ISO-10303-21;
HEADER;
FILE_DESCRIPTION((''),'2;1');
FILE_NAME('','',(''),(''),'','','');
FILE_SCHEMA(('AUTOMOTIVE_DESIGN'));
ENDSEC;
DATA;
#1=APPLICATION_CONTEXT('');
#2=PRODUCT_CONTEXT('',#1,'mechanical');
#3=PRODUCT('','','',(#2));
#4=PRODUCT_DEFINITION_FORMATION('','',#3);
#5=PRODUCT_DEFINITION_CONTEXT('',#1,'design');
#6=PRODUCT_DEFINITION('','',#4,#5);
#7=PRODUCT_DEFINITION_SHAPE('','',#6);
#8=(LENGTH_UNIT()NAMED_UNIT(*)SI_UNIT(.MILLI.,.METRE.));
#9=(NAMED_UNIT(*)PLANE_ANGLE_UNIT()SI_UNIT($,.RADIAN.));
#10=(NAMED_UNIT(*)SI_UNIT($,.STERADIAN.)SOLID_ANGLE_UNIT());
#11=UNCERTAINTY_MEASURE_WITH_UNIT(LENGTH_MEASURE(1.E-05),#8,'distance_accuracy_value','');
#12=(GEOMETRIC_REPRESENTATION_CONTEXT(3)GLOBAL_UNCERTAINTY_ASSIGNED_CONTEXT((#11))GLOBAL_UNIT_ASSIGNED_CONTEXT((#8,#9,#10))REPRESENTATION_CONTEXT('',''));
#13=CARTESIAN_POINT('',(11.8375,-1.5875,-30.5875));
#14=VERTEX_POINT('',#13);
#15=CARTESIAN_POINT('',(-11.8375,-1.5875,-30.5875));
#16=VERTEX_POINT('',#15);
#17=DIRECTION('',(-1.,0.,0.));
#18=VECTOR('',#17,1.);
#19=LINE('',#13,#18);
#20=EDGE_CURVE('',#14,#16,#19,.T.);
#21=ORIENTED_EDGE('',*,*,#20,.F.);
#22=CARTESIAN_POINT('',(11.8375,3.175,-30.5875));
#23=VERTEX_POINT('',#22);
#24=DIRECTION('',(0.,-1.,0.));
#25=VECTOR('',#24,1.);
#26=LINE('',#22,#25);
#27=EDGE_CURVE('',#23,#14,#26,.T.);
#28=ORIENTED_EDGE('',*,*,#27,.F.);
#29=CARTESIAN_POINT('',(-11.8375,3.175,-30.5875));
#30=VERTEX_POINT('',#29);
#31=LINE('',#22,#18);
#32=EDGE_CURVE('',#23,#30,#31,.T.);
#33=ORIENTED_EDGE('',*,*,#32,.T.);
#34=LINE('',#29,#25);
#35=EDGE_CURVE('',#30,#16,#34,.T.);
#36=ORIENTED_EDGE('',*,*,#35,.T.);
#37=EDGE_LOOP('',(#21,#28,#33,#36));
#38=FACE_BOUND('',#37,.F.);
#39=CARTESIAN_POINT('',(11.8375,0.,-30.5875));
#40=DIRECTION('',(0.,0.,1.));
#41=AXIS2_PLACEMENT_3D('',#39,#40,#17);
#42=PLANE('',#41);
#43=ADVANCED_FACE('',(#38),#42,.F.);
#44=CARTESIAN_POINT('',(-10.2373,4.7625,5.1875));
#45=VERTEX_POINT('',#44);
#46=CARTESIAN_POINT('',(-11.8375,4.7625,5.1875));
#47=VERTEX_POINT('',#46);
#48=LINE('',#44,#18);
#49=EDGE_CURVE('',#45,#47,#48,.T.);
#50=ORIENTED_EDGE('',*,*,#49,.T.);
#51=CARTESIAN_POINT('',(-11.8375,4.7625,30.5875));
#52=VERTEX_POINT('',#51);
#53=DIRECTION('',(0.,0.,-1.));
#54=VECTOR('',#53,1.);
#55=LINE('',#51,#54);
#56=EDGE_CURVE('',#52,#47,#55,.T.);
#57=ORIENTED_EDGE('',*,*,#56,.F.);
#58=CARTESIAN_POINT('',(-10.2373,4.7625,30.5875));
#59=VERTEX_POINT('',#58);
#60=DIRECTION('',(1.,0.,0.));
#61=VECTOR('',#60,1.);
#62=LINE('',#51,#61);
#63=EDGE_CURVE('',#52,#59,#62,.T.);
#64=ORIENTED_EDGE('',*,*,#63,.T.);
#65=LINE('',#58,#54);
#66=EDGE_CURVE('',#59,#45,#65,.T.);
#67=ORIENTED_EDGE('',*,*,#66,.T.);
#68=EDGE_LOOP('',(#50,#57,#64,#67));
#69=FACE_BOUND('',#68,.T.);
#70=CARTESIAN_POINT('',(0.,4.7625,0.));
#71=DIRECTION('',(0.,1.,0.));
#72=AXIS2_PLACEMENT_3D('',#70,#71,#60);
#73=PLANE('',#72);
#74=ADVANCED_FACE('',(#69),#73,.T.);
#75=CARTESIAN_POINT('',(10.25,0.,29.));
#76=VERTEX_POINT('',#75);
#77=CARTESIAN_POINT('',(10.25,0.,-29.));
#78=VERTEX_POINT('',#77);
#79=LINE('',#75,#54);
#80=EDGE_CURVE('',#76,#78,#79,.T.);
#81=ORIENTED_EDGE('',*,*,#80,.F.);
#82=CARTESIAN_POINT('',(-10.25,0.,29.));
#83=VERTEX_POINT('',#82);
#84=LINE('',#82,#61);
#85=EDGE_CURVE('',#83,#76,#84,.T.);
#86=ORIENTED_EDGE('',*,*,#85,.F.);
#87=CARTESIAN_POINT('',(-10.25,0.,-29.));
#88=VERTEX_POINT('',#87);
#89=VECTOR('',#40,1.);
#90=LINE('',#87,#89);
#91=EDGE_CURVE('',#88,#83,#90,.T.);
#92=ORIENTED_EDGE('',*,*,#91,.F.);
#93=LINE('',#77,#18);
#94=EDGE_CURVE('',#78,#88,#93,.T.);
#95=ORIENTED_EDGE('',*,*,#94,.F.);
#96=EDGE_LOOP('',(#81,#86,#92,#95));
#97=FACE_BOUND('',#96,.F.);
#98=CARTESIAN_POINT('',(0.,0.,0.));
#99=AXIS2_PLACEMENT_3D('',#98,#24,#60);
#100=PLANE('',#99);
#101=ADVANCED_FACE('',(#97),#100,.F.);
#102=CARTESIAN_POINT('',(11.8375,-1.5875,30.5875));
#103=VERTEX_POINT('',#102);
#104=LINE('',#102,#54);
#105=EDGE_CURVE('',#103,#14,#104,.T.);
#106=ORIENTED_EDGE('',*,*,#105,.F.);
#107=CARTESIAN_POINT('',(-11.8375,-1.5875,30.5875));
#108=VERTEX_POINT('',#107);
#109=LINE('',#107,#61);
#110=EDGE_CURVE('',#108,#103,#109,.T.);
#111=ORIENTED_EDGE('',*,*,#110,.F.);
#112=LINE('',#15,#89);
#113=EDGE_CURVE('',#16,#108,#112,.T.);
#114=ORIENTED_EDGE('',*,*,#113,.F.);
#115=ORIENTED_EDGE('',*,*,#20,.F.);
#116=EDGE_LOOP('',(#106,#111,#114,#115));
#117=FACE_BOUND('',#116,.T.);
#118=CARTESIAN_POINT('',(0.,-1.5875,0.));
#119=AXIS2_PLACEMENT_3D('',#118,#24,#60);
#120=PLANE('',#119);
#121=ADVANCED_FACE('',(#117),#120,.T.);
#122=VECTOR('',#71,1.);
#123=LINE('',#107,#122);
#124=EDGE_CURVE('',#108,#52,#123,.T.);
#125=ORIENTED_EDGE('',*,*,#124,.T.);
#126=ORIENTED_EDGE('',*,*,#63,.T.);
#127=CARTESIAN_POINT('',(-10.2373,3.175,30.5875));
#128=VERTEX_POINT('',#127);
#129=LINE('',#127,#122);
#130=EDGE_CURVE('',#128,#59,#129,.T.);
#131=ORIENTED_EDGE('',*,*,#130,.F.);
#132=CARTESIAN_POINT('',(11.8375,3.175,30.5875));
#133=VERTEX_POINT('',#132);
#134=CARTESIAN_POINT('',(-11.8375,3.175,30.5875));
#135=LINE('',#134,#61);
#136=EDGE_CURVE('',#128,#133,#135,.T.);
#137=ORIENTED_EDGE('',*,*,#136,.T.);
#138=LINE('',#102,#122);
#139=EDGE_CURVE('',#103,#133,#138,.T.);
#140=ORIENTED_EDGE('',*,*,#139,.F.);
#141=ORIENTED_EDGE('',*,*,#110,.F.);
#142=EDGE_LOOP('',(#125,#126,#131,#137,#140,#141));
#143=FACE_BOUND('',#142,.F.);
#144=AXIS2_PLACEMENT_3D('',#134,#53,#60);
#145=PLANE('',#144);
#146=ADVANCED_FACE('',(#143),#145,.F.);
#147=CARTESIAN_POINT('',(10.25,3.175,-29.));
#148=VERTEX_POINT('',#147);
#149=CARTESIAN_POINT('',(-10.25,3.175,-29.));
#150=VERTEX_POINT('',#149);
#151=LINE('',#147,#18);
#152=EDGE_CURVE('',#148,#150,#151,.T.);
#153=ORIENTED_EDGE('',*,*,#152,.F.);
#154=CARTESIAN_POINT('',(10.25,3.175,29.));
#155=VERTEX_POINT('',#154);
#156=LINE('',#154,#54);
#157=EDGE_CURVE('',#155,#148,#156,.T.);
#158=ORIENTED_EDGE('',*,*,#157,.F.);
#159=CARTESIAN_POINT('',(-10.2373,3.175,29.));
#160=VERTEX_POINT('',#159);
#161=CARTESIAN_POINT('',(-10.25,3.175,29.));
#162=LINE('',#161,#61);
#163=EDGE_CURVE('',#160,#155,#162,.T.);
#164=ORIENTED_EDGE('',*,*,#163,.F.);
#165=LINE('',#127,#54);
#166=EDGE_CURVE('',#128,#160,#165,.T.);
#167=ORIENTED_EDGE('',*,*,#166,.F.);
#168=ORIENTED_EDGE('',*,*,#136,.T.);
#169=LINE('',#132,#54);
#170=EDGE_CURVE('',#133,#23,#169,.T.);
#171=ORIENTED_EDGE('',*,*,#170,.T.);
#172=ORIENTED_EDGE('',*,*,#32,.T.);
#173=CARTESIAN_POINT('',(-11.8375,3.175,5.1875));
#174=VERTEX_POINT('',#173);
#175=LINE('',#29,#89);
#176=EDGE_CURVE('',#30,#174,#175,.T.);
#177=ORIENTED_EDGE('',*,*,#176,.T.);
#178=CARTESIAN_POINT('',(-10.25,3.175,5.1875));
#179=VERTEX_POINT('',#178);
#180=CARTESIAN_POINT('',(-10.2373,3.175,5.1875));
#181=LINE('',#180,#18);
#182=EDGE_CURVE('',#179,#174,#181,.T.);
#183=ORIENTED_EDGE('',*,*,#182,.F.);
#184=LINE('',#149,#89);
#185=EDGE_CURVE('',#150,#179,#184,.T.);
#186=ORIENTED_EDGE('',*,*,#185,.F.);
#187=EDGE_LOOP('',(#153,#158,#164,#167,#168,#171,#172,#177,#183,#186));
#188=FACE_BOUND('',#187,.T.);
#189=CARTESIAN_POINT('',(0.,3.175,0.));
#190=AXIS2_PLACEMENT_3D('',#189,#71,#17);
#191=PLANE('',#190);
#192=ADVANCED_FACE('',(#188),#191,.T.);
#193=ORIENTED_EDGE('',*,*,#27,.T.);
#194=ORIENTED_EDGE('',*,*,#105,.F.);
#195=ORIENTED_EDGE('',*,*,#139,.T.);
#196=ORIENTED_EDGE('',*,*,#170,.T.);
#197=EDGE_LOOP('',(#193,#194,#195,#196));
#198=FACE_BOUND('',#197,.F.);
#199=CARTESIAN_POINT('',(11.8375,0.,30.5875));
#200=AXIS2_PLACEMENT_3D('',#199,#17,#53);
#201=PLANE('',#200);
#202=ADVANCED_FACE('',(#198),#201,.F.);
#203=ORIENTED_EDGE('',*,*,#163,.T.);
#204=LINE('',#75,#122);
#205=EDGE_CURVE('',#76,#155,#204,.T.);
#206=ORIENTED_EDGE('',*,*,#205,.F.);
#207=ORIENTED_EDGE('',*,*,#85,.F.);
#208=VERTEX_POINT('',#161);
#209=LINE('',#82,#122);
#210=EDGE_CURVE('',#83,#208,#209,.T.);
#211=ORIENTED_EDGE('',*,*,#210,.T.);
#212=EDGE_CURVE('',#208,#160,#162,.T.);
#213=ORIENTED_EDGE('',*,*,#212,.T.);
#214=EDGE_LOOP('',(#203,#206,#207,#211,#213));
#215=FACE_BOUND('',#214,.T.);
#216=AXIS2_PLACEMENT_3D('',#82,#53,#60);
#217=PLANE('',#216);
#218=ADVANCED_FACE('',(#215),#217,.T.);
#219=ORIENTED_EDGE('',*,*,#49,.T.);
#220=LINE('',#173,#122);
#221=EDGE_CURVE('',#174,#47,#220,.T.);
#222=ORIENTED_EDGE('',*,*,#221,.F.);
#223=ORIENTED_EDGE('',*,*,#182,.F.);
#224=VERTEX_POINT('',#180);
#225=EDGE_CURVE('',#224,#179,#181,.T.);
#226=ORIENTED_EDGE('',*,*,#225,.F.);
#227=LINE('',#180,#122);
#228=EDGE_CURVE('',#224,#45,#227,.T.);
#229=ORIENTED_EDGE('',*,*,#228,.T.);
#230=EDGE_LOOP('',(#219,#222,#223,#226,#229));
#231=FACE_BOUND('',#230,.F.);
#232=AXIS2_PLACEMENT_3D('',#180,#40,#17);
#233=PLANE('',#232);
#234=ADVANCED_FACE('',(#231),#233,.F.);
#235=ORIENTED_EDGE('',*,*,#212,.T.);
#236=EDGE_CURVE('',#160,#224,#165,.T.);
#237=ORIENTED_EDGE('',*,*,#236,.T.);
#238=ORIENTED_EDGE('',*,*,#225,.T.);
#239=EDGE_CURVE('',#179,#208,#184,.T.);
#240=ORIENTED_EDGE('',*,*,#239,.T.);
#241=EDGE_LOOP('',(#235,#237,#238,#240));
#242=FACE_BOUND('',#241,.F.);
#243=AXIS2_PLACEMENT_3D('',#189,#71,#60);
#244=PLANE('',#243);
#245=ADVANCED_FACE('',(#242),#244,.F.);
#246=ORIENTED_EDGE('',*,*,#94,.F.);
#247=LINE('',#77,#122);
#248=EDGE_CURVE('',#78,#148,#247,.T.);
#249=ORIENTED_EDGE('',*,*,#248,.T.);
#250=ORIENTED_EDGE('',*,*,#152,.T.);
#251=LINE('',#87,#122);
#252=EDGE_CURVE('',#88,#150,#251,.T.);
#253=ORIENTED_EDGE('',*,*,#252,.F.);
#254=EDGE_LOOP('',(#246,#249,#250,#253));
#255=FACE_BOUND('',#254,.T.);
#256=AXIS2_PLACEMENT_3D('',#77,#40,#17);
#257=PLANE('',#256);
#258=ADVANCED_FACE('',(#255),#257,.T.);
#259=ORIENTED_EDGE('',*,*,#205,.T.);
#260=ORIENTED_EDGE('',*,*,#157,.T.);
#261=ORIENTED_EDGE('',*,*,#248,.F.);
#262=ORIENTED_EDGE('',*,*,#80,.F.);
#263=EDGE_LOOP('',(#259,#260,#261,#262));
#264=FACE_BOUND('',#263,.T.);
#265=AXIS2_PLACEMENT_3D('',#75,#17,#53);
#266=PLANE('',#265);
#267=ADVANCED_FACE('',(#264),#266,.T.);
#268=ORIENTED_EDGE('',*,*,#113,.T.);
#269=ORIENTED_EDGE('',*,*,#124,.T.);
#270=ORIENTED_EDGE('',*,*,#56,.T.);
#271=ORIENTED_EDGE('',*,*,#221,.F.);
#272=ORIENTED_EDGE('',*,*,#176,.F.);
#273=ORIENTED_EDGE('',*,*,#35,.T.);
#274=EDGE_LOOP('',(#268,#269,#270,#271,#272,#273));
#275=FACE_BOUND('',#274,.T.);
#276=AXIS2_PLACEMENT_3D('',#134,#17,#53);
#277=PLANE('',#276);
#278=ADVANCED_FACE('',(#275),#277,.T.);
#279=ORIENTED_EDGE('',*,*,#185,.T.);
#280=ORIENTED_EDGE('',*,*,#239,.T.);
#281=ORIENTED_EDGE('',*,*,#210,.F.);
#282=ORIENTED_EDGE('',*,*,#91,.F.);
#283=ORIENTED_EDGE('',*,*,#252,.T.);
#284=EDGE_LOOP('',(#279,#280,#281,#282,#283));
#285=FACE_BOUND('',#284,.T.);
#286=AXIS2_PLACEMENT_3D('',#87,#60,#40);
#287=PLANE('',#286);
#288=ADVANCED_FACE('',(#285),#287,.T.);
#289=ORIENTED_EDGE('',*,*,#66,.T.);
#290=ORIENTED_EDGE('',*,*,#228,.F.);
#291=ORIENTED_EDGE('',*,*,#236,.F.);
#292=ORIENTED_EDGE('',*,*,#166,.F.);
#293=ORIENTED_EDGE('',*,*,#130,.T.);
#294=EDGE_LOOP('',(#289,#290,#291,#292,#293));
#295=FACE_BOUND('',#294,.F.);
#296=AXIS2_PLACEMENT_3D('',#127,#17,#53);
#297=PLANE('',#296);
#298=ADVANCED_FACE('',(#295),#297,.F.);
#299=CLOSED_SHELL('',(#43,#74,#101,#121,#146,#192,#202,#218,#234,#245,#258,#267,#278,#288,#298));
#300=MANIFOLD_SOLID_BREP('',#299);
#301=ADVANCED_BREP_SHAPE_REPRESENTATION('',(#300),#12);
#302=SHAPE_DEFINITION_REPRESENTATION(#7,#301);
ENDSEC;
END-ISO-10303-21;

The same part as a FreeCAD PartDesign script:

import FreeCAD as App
import Part
import Sketcher
from FreeCAD import Vector
Q = App.Units.Quantity

doc = App.newDocument("Part")
body = doc.addObject("PartDesign::Body", "Body")

sketch1 = body.newObject("Sketcher::SketchObject", "Sketch")
sketch1.AttachmentSupport = (doc.getObject("XZ_Plane"), [""])
sketch1.MapMode = "FlatFace"
sketch1.addGeometry(Part.LineSegment(Vector(-11.8375, -30.5875, 0), Vector(-11.8375, 30.5875, 0)), False)
sketch1.addGeometry(Part.LineSegment(Vector(-11.8375, 30.5875, 0), Vector(11.8375, 30.5875, 0)), False)
sketch1.addGeometry(Part.LineSegment(Vector(11.8375, 30.5875, 0), Vector(11.8375, -30.5875, 0)), False)
sketch1.addGeometry(Part.LineSegment(Vector(11.8375, -30.5875, 0), Vector(-11.8375, -30.5875, 0)), False)
sketch1.addGeometry(Part.LineSegment(Vector(10.25, 29, 0), Vector(-10.25, 29, 0)), False)
sketch1.addGeometry(Part.LineSegment(Vector(-10.25, 29, 0), Vector(-10.25, -29, 0)), False)
sketch1.addGeometry(Part.LineSegment(Vector(-10.25, -29, 0), Vector(10.25, -29, 0)), False)
sketch1.addGeometry(Part.LineSegment(Vector(10.25, -29, 0), Vector(10.25, 29, 0)), False)
sketch1.addConstraint(Sketcher.Constraint("Coincident", 0, 2, 1, 1))
sketch1.addConstraint(Sketcher.Constraint("Coincident", 1, 2, 2, 1))
sketch1.addConstraint(Sketcher.Constraint("Coincident", 2, 2, 3, 1))
sketch1.addConstraint(Sketcher.Constraint("Coincident", 3, 2, 0, 1))
sketch1.addConstraint(Sketcher.Constraint("Coincident", 4, 2, 5, 1))
sketch1.addConstraint(Sketcher.Constraint("Coincident", 5, 2, 6, 1))
sketch1.addConstraint(Sketcher.Constraint("Coincident", 6, 2, 7, 1))
sketch1.addConstraint(Sketcher.Constraint("Coincident", 7, 2, 4, 1))
sketch1.addConstraint(Sketcher.Constraint("Vertical", 0))
sketch1.addConstraint(Sketcher.Constraint("Horizontal", 1))
sketch1.addConstraint(Sketcher.Constraint("Vertical", 2))
sketch1.addConstraint(Sketcher.Constraint("Horizontal", 3))
sketch1.addConstraint(Sketcher.Constraint("Horizontal", 4))
sketch1.addConstraint(Sketcher.Constraint("Vertical", 5))
sketch1.addConstraint(Sketcher.Constraint("Horizontal", 6))
sketch1.addConstraint(Sketcher.Constraint("Vertical", 7))
sketch1.addConstraint(Sketcher.Constraint("Symmetric", 0, 2, 2, 2, -1, 1))
sketch1.addConstraint(Sketcher.Constraint("Symmetric", 4, 2, 6, 2, -1, 1))
sketch1.addConstraint(Sketcher.Constraint("DistanceX", 0, 2, 4, 2, Q("0.0625 in")))
sketch1.addConstraint(Sketcher.Constraint("DistanceY", 4, 2, 0, 2, Q("0.0625 in")))
sketch1.addConstraint(Sketcher.Constraint("DistanceX", 4, 2, 4, 1, 20.5))
sketch1.addConstraint(Sketcher.Constraint("DistanceY", 5, 2, 5, 1, 58.0))
pad1 = body.newObject("PartDesign::Pad", "Pad")
pad1.Profile = sketch1
pad1.Length = Q("0.125 in")
pad1.Reversed = True

sketch2 = body.newObject("Sketcher::SketchObject", "Sketch001")
sketch2.AttachmentSupport = (doc.getObject("XZ_Plane"), [""])
sketch2.MapMode = "FlatFace"
sketch2.addGeometry(Part.LineSegment(Vector(11.8375, 30.5875, 0), Vector(-11.8375, 30.5875, 0)), False)
sketch2.addGeometry(Part.LineSegment(Vector(-11.8375, 30.5875, 0), Vector(-11.8375, -30.5875, 0)), False)
sketch2.addGeometry(Part.LineSegment(Vector(-11.8375, -30.5875, 0), Vector(11.8375, -30.5875, 0)), False)
sketch2.addGeometry(Part.LineSegment(Vector(11.8375, -30.5875, 0), Vector(11.8375, 30.5875, 0)), False)
sketch2.addConstraint(Sketcher.Constraint("Coincident", 0, 2, 1, 1))
sketch2.addConstraint(Sketcher.Constraint("Coincident", 1, 2, 2, 1))
sketch2.addConstraint(Sketcher.Constraint("Coincident", 2, 2, 3, 1))
sketch2.addConstraint(Sketcher.Constraint("Coincident", 3, 2, 0, 1))
sketch2.addConstraint(Sketcher.Constraint("Horizontal", 0))
sketch2.addConstraint(Sketcher.Constraint("Vertical", 1))
sketch2.addConstraint(Sketcher.Constraint("Horizontal", 2))
sketch2.addConstraint(Sketcher.Constraint("Vertical", 3))
sketch2.addConstraint(Sketcher.Constraint("Symmetric", 0, 2, 2, 2, -1, 1))
sketch2.addConstraint(Sketcher.Constraint("DistanceX", 0, 2, 0, 1, 23.675))
sketch2.addConstraint(Sketcher.Constraint("DistanceY", 1, 2, 1, 1, 61.175))
pad2 = body.newObject("PartDesign::Pad", "Pad001")
pad2.Profile = sketch2
pad2.Length = Q("0.0625 in")

sketch3 = body.newObject("Sketcher::SketchObject", "Sketch002")
sketch3.AttachmentSupport = (doc.getObject("XZ_Plane"), [""])
sketch3.MapMode = "FlatFace"
sketch3.AttachmentOffset = App.Placement(Vector(0, 0, -0.125 * 25.4), App.Rotation())
sketch3.addGeometry(Part.LineSegment(Vector(-11.8375, 5.1875, 0), Vector(-11.8375, 30.5875, 0)), False)
sketch3.addGeometry(Part.LineSegment(Vector(-11.8375, 30.5875, 0), Vector(-10.2373, 30.5875, 0)), False)
sketch3.addGeometry(Part.LineSegment(Vector(-10.2373, 30.5875, 0), Vector(-10.2373, 5.1875, 0)), False)
sketch3.addGeometry(Part.LineSegment(Vector(-10.2373, 5.1875, 0), Vector(-11.8375, 5.1875, 0)), False)
sketch3.addConstraint(Sketcher.Constraint("Coincident", 0, 2, 1, 1))
sketch3.addConstraint(Sketcher.Constraint("Coincident", 1, 2, 2, 1))
sketch3.addConstraint(Sketcher.Constraint("Coincident", 2, 2, 3, 1))
sketch3.addConstraint(Sketcher.Constraint("Coincident", 3, 2, 0, 1))
sketch3.addConstraint(Sketcher.Constraint("Vertical", 0))
sketch3.addConstraint(Sketcher.Constraint("Horizontal", 1))
sketch3.addConstraint(Sketcher.Constraint("Vertical", 2))
sketch3.addConstraint(Sketcher.Constraint("Horizontal", 3))
sketch3.addConstraint(Sketcher.Constraint("DistanceY", 0, 1, 0, 2, Q("1 in")))
sketch3.addConstraint(Sketcher.Constraint("DistanceX", 1, 1, 1, 2, Q("0.063 in")))
sketch3.addConstraint(Sketcher.Constraint("DistanceX", 0, 2, -1, 1, 11.8375))
sketch3.addConstraint(Sketcher.Constraint("DistanceY", -1, 1, 0, 2, 30.5875))
pad3 = body.newObject("PartDesign::Pad", "Pad002")
pad3.Profile = sketch3
pad3.Length = Q("0.0625 in")
pad3.Reversed = True

doc.recompute()
